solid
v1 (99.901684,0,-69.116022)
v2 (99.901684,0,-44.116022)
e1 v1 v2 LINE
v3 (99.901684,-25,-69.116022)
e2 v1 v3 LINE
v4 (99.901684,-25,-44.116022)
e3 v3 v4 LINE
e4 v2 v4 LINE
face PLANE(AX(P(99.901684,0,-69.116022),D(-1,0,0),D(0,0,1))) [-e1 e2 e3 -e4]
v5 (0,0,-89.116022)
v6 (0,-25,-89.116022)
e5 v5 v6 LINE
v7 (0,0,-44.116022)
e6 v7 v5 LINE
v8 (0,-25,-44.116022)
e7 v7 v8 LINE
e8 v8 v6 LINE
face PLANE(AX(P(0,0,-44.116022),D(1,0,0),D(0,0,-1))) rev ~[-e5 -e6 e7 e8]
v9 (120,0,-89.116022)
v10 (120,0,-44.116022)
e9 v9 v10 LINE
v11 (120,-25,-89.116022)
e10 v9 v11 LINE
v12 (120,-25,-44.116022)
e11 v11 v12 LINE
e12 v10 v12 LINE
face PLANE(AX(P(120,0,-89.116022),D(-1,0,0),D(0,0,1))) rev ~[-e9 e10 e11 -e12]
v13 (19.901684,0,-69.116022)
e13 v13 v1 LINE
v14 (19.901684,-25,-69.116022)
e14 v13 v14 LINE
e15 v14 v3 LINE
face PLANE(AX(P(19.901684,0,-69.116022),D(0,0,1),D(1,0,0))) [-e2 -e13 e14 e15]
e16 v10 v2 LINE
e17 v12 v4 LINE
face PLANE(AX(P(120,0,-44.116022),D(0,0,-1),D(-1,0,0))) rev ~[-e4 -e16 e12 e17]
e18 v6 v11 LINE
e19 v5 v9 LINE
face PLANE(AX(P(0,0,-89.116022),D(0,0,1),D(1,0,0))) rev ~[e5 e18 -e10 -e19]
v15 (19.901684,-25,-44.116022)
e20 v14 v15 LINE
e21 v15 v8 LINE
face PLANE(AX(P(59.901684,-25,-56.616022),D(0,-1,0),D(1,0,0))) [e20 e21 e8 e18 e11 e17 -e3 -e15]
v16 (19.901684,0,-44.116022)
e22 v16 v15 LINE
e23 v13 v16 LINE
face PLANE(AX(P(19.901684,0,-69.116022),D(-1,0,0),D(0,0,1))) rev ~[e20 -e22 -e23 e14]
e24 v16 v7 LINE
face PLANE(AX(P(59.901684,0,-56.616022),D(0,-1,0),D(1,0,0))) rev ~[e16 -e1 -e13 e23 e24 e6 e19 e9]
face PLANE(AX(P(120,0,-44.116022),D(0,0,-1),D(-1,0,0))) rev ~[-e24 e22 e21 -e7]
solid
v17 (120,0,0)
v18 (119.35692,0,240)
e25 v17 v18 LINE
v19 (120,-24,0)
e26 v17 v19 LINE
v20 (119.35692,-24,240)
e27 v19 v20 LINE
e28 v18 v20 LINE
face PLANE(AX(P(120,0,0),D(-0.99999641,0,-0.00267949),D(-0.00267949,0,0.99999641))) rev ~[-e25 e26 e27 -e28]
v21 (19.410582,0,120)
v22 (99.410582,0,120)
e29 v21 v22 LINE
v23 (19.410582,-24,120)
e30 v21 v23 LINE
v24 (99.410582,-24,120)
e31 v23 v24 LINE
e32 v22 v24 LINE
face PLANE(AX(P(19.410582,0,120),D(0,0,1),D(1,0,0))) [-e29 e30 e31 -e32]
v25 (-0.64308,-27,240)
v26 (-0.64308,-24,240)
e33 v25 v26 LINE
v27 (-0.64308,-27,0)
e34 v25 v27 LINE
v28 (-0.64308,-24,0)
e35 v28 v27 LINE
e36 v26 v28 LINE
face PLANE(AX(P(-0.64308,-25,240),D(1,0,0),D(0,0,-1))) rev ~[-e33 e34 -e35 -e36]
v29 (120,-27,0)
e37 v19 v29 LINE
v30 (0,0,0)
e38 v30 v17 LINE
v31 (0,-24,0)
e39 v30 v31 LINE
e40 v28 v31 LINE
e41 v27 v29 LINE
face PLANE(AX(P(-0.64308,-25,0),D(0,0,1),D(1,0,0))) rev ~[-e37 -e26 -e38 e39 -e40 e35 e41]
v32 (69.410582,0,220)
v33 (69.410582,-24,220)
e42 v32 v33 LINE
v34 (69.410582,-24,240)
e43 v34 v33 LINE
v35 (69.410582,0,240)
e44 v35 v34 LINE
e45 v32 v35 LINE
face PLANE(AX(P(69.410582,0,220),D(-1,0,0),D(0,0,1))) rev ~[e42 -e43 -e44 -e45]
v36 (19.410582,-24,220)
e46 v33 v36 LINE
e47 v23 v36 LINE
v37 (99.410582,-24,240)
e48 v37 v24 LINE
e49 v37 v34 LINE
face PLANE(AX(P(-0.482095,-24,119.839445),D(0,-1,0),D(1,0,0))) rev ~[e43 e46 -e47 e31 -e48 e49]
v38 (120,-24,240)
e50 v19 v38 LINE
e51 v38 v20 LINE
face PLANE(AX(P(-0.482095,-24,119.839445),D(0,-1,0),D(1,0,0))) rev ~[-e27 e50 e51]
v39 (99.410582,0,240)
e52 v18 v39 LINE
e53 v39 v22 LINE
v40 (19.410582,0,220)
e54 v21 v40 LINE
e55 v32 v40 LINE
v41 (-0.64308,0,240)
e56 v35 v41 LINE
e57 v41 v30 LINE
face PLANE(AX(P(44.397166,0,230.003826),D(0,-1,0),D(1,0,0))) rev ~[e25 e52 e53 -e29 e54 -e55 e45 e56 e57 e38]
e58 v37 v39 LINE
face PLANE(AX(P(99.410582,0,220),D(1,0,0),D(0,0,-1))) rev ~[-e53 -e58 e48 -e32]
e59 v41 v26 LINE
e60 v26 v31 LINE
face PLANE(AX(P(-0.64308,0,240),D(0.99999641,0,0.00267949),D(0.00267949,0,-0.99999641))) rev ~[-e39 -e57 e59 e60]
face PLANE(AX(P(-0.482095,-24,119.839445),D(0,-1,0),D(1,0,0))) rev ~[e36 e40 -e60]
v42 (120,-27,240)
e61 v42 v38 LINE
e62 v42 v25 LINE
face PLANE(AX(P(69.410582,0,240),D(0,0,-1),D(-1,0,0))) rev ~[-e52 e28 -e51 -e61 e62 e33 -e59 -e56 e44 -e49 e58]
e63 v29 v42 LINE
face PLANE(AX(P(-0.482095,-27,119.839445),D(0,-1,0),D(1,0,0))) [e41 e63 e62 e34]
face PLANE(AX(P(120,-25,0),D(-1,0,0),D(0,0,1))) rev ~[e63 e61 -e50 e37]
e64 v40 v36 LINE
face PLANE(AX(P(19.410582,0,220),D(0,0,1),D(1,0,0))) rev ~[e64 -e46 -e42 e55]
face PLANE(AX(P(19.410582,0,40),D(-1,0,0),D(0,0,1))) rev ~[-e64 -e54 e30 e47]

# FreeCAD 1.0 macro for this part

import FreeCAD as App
import Part
import Sketcher

doc = App.newDocument("Part")
params = doc.addObject("Spreadsheet::Sheet", "Params")
for row, (alias, value) in enumerate([
    ("sketch1_width", "120 mm"),
    ("sketch1_height", "45 mm"),
    ("pad1_length", "25 mm"),
    ("sketch2_width", "80 mm"),
    ("sketch2_height", "25 mm"),
    ("pocket1_length", "25 mm"),
    ("sketch3_width", "80 mm"),
    ("sketch3_height", "25 mm"),
    ("pocket2_length", "25 mm"),
    ("sketch4_width", "120 mm"),
    ("sketch4_width2", "80 mm"),
    ("sketch4_height", "180 mm"),
    ("pad2_length", "25 mm"),
    ("sketch5_width", "80 mm"),
    ("pad3_length", "25 mm"),
    ("sketch6_height", "20 mm"),
    ("pocket3_length", "25 mm"),
    ("sketch7_height", "240 mm"),
    ("pad4_length", "1 mm"),
    ("pad4_length2", "2 mm"),
    ("sketch8_width", "50 mm"),
    ("sketch8_height", "20 mm"),
    ("pad5_length", "25 mm"),
], start=1):
    params.set(f"A{row}", alias)
    params.set(f"B{row}", "=" + value)
    params.setAlias(f"B{row}", alias)

body = doc.addObject("PartDesign::Body", "Body")

# Sketch on XZ plane
sketch1 = body.newObject("Sketcher::SketchObject", "Sketch")
sketch1.AttachmentSupport = (doc.getObject("XZ_Plane"), [""])
sketch1.MapMode = "FlatFace"
sketch1.addGeometry(Part.LineSegment(App.Vector(0, -44, 0), App.Vector(0, -89, 0)), False)
sketch1.addGeometry(Part.LineSegment(App.Vector(0, -89, 0), App.Vector(120, -89, 0)), False)
sketch1.addGeometry(Part.LineSegment(App.Vector(120, -89, 0), App.Vector(120, -44, 0)), False)
sketch1.addGeometry(Part.LineSegment(App.Vector(120, -44, 0), App.Vector(0, -44, 0)), False)
sketch1.addConstraint(Sketcher.Constraint("Coincident", 0, 2, 1, 1))
sketch1.addConstraint(Sketcher.Constraint("Coincident", 1, 2, 2, 1))
sketch1.addConstraint(Sketcher.Constraint("Coincident", 2, 2, 3, 1))
sketch1.addConstraint(Sketcher.Constraint("Coincident", 3, 2, 0, 1))
sketch1.addConstraint(Sketcher.Constraint("Vertical", 0))
sketch1.addConstraint(Sketcher.Constraint("Horizontal", 1))
sketch1.addConstraint(Sketcher.Constraint("Vertical", 2))
sketch1.addConstraint(Sketcher.Constraint("Horizontal", 3))
sketch1.addConstraint(Sketcher.Constraint("PointOnObject", 0, 2, -2))
sketch1.addConstraint(Sketcher.Constraint("DistanceX", 1, 1, 1, 2, 120.0))
sketch1.addConstraint(Sketcher.Constraint("DistanceY", 0, 2, 0, 1, 45.0))
sketch1.addConstraint(Sketcher.Constraint("DistanceY", 0, 2, -1, 1, 89.116022))
sketch1.setExpression("Constraints[9]", "Params.sketch1_width")
sketch1.setExpression("Constraints[10]", "Params.sketch1_height")
pad1 = body.newObject("PartDesign::Pad", "Pad")
pad1.Profile = sketch1
pad1.setExpression("Length", "Params.pad1_length")

# Sketch on XZ plane
sketch2 = body.newObject("Sketcher::SketchObject", "Sketch001")
sketch2.AttachmentSupport = (doc.getObject("XZ_Plane"), [""])
sketch2.MapMode = "FlatFace"
sketch2.addGeometry(Part.LineSegment(App.Vector(20, -44, 0), App.Vector(20, -69, 0)), False)
sketch2.addGeometry(Part.LineSegment(App.Vector(20, -69, 0), App.Vector(100, -69, 0)), False)
sketch2.addGeometry(Part.LineSegment(App.Vector(100, -69, 0), App.Vector(100, -44, 0)), False)
sketch2.addGeometry(Part.LineSegment(App.Vector(100, -44, 0), App.Vector(20, -44, 0)), False)
sketch2.addConstraint(Sketcher.Constraint("Coincident", 0, 2, 1, 1))
sketch2.addConstraint(Sketcher.Constraint("Coincident", 1, 2, 2, 1))
sketch2.addConstraint(Sketcher.Constraint("Coincident", 2, 2, 3, 1))
sketch2.addConstraint(Sketcher.Constraint("Coincident", 3, 2, 0, 1))
sketch2.addConstraint(Sketcher.Constraint("Vertical", 0))
sketch2.addConstraint(Sketcher.Constraint("Horizontal", 1))
sketch2.addConstraint(Sketcher.Constraint("Vertical", 2))
sketch2.addConstraint(Sketcher.Constraint("Horizontal", 3))
sketch2.addConstraint(Sketcher.Constraint("DistanceX", 1, 1, 1, 2, 80.0))
sketch2.addConstraint(Sketcher.Constraint("DistanceY", 0, 2, 0, 1, 25.0))
sketch2.addConstraint(Sketcher.Constraint("DistanceY", 0, 2, -1, 1, 69.116022))
sketch2.addConstraint(Sketcher.Constraint("DistanceX", -1, 1, 0, 2, 19.901684))
sketch2.setExpression("Constraints[8]", "Params.sketch2_width")
sketch2.setExpression("Constraints[9]", "Params.sketch2_height")
pocket1 = body.newObject("PartDesign::Pocket", "Pocket")
pocket1.Profile = sketch2
pocket1.setExpression("Length", "Params.pocket1_length")

# Sketch on XZ plane
sketch3 = body.newObject("Sketcher::SketchObject", "Sketch002")
sketch3.AttachmentSupport = (doc.getObject("XZ_Plane"), [""])
sketch3.MapMode = "FlatFace"
sketch3.addGeometry(Part.LineSegment(App.Vector(20, -44, 0), App.Vector(20, -69, 0)), False)
sketch3.addGeometry(Part.LineSegment(App.Vector(20, -69, 0), App.Vector(100, -69, 0)), False)
sketch3.addGeometry(Part.LineSegment(App.Vector(100, -69, 0), App.Vector(100, -44, 0)), False)
sketch3.addGeometry(Part.LineSegment(App.Vector(100, -44, 0), App.Vector(20, -44, 0)), False)
sketch3.addConstraint(Sketcher.Constraint("Coincident", 0, 2, 1, 1))
sketch3.addConstraint(Sketcher.Constraint("Coincident", 1, 2, 2, 1))
sketch3.addConstraint(Sketcher.Constraint("Coincident", 2, 2, 3, 1))
sketch3.addConstraint(Sketcher.Constraint("Coincident", 3, 2, 0, 1))
sketch3.addConstraint(Sketcher.Constraint("Vertical", 0))
sketch3.addConstraint(Sketcher.Constraint("Horizontal", 1))
sketch3.addConstraint(Sketcher.Constraint("Vertical", 2))
sketch3.addConstraint(Sketcher.Constraint("Horizontal", 3))
sketch3.addConstraint(Sketcher.Constraint("DistanceX", 1, 1, 1, 2, 80.0))
sketch3.addConstraint(Sketcher.Constraint("DistanceY", 0, 2, 0, 1, 25.0))
sketch3.addConstraint(Sketcher.Constraint("DistanceY", 0, 2, -1, 1, 69.116022))
sketch3.addConstraint(Sketcher.Constraint("DistanceX", -1, 1, 0, 2, 19.901684))
sketch3.setExpression("Constraints[8]", "Params.sketch3_width")
sketch3.setExpression("Constraints[9]", "Params.sketch3_height")
pocket2 = body.newObject("PartDesign::Pocket", "Pocket001")
pocket2.Profile = sketch3
pocket2.setExpression("Length", "Params.pocket2_length")
pocket2.Reversed = True
body2 = doc.addObject("PartDesign::Body", "Body001")

# Sketch on XZ plane
sketch4 = body2.newObject("Sketcher::SketchObject", "Sketch003")
sketch4.AttachmentSupport = (doc.getObject("XZ_Plane001"), [""])
sketch4.MapMode = "FlatFace"
sketch4.addGeometry(Part.LineSegment(App.Vector(-1, 240, 0), App.Vector(0, 0, 0)), False)
sketch4.addGeometry(Part.LineSegment(App.Vector(0, 0, 0), App.Vector(120, 0, 0)), False)
sketch4.addGeometry(Part.LineSegment(App.Vector(120, 0, 0), App.Vector(119, 240, 0)), False)
sketch4.addGeometry(Part.LineSegment(App.Vector(119, 240, 0), App.Vector(-1, 240, 0)), False)
sketch4.addGeometry(Part.LineSegment(App.Vector(99, 220, 0), App.Vector(99, 40, 0)), False)
sketch4.addGeometry(Part.LineSegment(App.Vector(99, 40, 0), App.Vector(19, 40, 0)), False)
sketch4.addGeometry(Part.LineSegment(App.Vector(19, 40, 0), App.Vector(19, 220, 0)), False)
sketch4.addGeometry(Part.LineSegment(App.Vector(19, 220, 0), App.Vector(99, 220, 0)), False)
sketch4.addConstraint(Sketcher.Constraint("Coincident", 0, 2, 1, 1))
sketch4.addConstraint(Sketcher.Constraint("Coincident", 1, 2, 2, 1))
sketch4.addConstraint(Sketcher.Constraint("Coincident", 2, 2, 3, 1))
sketch4.addConstraint(Sketcher.Constraint("Coincident", 3, 2, 0, 1))
sketch4.addConstraint(Sketcher.Constraint("Coincident", 4, 2, 5, 1))
sketch4.addConstraint(Sketcher.Constraint("Coincident", 5, 2, 6, 1))
sketch4.addConstraint(Sketcher.Constraint("Coincident", 6, 2, 7, 1))
sketch4.addConstraint(Sketcher.Constraint("Coincident", 7, 2, 4, 1))
sketch4.addConstraint(Sketcher.Constraint("Horizontal", 1))
sketch4.addConstraint(Sketcher.Constraint("Horizontal", 3))
sketch4.addConstraint(Sketcher.Constraint("Vertical", 4))
sketch4.addConstraint(Sketcher.Constraint("Horizontal", 5))
sketch4.addConstraint(Sketcher.Constraint("Vertical", 6))
sketch4.addConstraint(Sketcher.Constraint("Horizontal", 7))
sketch4.addConstraint(Sketcher.Constraint("Coincident", 0, 2, -1, 1))
sketch4.addConstraint(Sketcher.Constraint("Parallel", 0, 2))
sketch4.addConstraint(Sketcher.Constraint("DistanceX", 1, 1, 1, 2, 120.0))
sketch4.addConstraint(Sketcher.Constraint("DistanceX", 5, 2, 5, 1, 80.0))
sketch4.addConstraint(Sketcher.Constraint("DistanceY", 4, 2, 4, 1, 180.0))
sketch4.addConstraint(Sketcher.Constraint("DistanceY", -1, 1, 2, 2, 240.0))
sketch4.addConstraint(Sketcher.Constraint("DistanceY", -1, 1, 4, 2, 40.0))
sketch4.addConstraint(Sketcher.Constraint("DistanceX", -1, 1, 2, 2, 119.35692))
sketch4.addConstraint(Sketcher.Constraint("DistanceX", -1, 1, 4, 2, 99.410582))
sketch4.setExpression("Constraints[16]", "Params.sketch4_width")
sketch4.setExpression("Constraints[17]", "Params.sketch4_width2")
sketch4.setExpression("Constraints[18]", "Params.sketch4_height")
pad2 = body2.newObject("PartDesign::Pad", "Pad001")
pad2.Profile = sketch4
pad2.setExpression("Length", "Params.pad2_length")

# Sketch on XZ plane
sketch5 = body2.newObject("Sketcher::SketchObject", "Sketch004")
sketch5.AttachmentSupport = (doc.getObject("XZ_Plane001"), [""])
sketch5.MapMode = "FlatFace"
sketch5.addGeometry(Part.LineSegment(App.Vector(19, 120, 0), App.Vector(19, 40, 0)), False)
sketch5.addGeometry(Part.LineSegment(App.Vector(19, 40, 0), App.Vector(99, 40, 0)), False)
sketch5.addGeometry(Part.LineSegment(App.Vector(99, 40, 0), App.Vector(99, 120, 0)), False)
sketch5.addGeometry(Part.LineSegment(App.Vector(99, 120, 0), App.Vector(19, 120, 0)), False)
sketch5.addConstraint(Sketcher.Constraint("Coincident", 0, 2, 1, 1))
sketch5.addConstraint(Sketcher.Constraint("Coincident", 1, 2, 2, 1))
sketch5.addConstraint(Sketcher.Constraint("Coincident", 2, 2, 3, 1))
sketch5.addConstraint(Sketcher.Constraint("Coincident", 3, 2, 0, 1))
sketch5.addConstraint(Sketcher.Constraint("Vertical", 0))
sketch5.addConstraint(Sketcher.Constraint("Horizontal", 1))
sketch5.addConstraint(Sketcher.Constraint("Vertical", 2))
sketch5.addConstraint(Sketcher.Constraint("Horizontal", 3))
sketch5.addConstraint(Sketcher.Constraint("Equal", 3, 0))
sketch5.addConstraint(Sketcher.Constraint("DistanceX", 1, 1, 1, 2, 80.0))
sketch5.addConstraint(Sketcher.Constraint("DistanceY", -1, 1, 0, 2, 40.0))
sketch5.addConstraint(Sketcher.Constraint("DistanceX", -1, 1, 0, 2, 19.410582))
sketch5.setExpression("Constraints[9]", "Params.sketch5_width")
pad3 = body2.newObject("PartDesign::Pad", "Pad002")
pad3.Profile = sketch5
pad3.setExpression("Length", "Params.pad3_length")

# Sketch on XZ plane
sketch6 = body2.newObject("Sketcher::SketchObject", "Sketch005")
sketch6.AttachmentSupport = (doc.getObject("XZ_Plane001"), [""])
sketch6.MapMode = "FlatFace"
sketch6.AttachmentOffset = App.Placement(App.Vector(0, 0, 25), App.Rotation())
sketch6.addGeometry(Part.LineSegment(App.Vector(20, 240, 0), App.Vector(20, 220, 0)), False)
sketch6.addGeometry(Part.LineSegment(App.Vector(20, 220, 0), App.Vector(99, 220, 0)), False)
sketch6.addGeometry(Part.LineSegment(App.Vector(99, 220, 0), App.Vector(99, 240, 0)), False)
sketch6.addGeometry(Part.LineSegment(App.Vector(99, 240, 0), App.Vector(20, 240, 0)), False)
sketch6.addConstraint(Sketcher.Constraint("Coincident", 0, 2, 1, 1))
sketch6.addConstraint(Sketcher.Constraint("Coincident", 1, 2, 2, 1))
sketch6.addConstraint(Sketcher.Constraint("Coincident", 2, 2, 3, 1))
sketch6.addConstraint(Sketcher.Constraint("Coincident", 3, 2, 0, 1))
sketch6.addConstraint(Sketcher.Constraint("Vertical", 0))
sketch6.addConstraint(Sketcher.Constraint("Horizontal", 1))
sketch6.addConstraint(Sketcher.Constraint("Vertical", 2))
sketch6.addConstraint(Sketcher.Constraint("Horizontal", 3))
sketch6.addConstraint(Sketcher.Constraint("DistanceY", 0, 2, 0, 1, 20.0))
sketch6.addConstraint(Sketcher.Constraint("DistanceY", -1, 1, 0, 2, 220.0))
sketch6.addConstraint(Sketcher.Constraint("DistanceX", 1, 1, 1, 2, 79.7933))
sketch6.addConstraint(Sketcher.Constraint("DistanceX", -1, 1, 0, 2, 19.617282))
sketch6.setExpression("Constraints[8]", "Params.sketch6_height")
pocket3 = body2.newObject("PartDesign::Pocket", "Pocket002")
pocket3.Profile = sketch6
pocket3.setExpression("Length", "Params.pocket3_length")

# Sketch on XZ plane
sketch7 = body2.newObject("Sketcher::SketchObject", "Sketch006")
sketch7.AttachmentSupport = (doc.getObject("XZ_Plane001"), [""])
sketch7.MapMode = "FlatFace"
sketch7.AttachmentOffset = App.Placement(App.Vector(0, 0, 25), App.Rotation())
sketch7.addGeometry(Part.LineSegment(App.Vector(-1, 240, 0), App.Vector(-1, 0, 0)), False)
sketch7.addGeometry(Part.LineSegment(App.Vector(-1, 0, 0), App.Vector(120, 0, 0)), False)
sketch7.addGeometry(Part.LineSegment(App.Vector(120, 0, 0), App.Vector(120, 240, 0)), False)
sketch7.addGeometry(Part.LineSegment(App.Vector(120, 240, 0), App.Vector(-1, 240, 0)), False)
sketch7.addConstraint(Sketcher.Constraint("Coincident", 0, 2, 1, 1))
sketch7.addConstraint(Sketcher.Constraint("Coincident", 1, 2, 2, 1))
sketch7.addConstraint(Sketcher.Constraint("Coincident", 2, 2, 3, 1))
sketch7.addConstraint(Sketcher.Constraint("Coincident", 3, 2, 0, 1))
sketch7.addConstraint(Sketcher.Constraint("Vertical", 0))
sketch7.addConstraint(Sketcher.Constraint("Horizontal", 1))
sketch7.addConstraint(Sketcher.Constraint("Vertical", 2))
sketch7.addConstraint(Sketcher.Constraint("Horizontal", 3))
sketch7.addConstraint(Sketcher.Constraint("PointOnObject", 0, 2, -1))
sketch7.addConstraint(Sketcher.Constraint("DistanceY", 0, 2, 0, 1, 240.0))
sketch7.addConstraint(Sketcher.Constraint("DistanceX", -1, 1, 1, 2, 120.0))
sketch7.addConstraint(Sketcher.Constraint("DistanceX", 1, 1, 1, 2, 120.64308))
sketch7.setExpression("Constraints[9]", "Params.sketch7_height")
pad4 = body2.newObject("PartDesign::Pad", "Pad003")
pad4.Profile = sketch7
pad4.Type = "TwoLengths"
pad4.setExpression("Length", "Params.pad4_length")
pad4.setExpression("Length2", "Params.pad4_length2")
pad4.Reversed = True

# Sketch on XZ plane
sketch8 = body2.newObject("Sketcher::SketchObject", "Sketch007")
sketch8.AttachmentSupport = (doc.getObject("XZ_Plane001"), [""])
sketch8.MapMode = "FlatFace"
sketch8.addGeometry(Part.LineSegment(App.Vector(69, 240, 0), App.Vector(19, 240, 0)), False)
sketch8.addGeometry(Part.LineSegment(App.Vector(19, 240, 0), App.Vector(19, 220, 0)), False)
sketch8.addGeometry(Part.LineSegment(App.Vector(19, 220, 0), App.Vector(69, 220, 0)), False)
sketch8.addGeometry(Part.LineSegment(App.Vector(69, 220, 0), App.Vector(69, 240, 0)), False)
sketch8.addConstraint(Sketcher.Constraint("Coincident", 0, 2, 1, 1))
sketch8.addConstraint(Sketcher.Constraint("Coincident", 1, 2, 2, 1))
sketch8.addConstraint(Sketcher.Constraint("Coincident", 2, 2, 3, 1))
sketch8.addConstraint(Sketcher.Constraint("Coincident", 3, 2, 0, 1))
sketch8.addConstraint(Sketcher.Constraint("Horizontal", 0))
sketch8.addConstraint(Sketcher.Constraint("Horizontal", 2))
sketch8.addConstraint(Sketcher.Constraint("Vertical", 3))
sketch8.addConstraint(Sketcher.Constraint("DistanceX", 2, 1, 2, 2, 50.0))
sketch8.addConstraint(Sketcher.Constraint("DistanceY", 3, 1, 3, 2, 20.0))
sketch8.addConstraint(Sketcher.Constraint("DistanceY", -1, 1, 0, 2, 240.0))
sketch8.addConstraint(Sketcher.Constraint("DistanceX", 0, 2, 0, 1, 50.05359))
sketch8.addConstraint(Sketcher.Constraint("DistanceX", -1, 1, 0, 2, 19.356992))
sketch8.setExpression("Constraints[7]", "Params.sketch8_width")
sketch8.setExpression("Constraints[8]", "Params.sketch8_height")
pad5 = body2.newObject("PartDesign::Pad", "Pad004")
pad5.Profile = sketch8
pad5.setExpression("Length", "Params.pad5_length")

doc.recompute()
